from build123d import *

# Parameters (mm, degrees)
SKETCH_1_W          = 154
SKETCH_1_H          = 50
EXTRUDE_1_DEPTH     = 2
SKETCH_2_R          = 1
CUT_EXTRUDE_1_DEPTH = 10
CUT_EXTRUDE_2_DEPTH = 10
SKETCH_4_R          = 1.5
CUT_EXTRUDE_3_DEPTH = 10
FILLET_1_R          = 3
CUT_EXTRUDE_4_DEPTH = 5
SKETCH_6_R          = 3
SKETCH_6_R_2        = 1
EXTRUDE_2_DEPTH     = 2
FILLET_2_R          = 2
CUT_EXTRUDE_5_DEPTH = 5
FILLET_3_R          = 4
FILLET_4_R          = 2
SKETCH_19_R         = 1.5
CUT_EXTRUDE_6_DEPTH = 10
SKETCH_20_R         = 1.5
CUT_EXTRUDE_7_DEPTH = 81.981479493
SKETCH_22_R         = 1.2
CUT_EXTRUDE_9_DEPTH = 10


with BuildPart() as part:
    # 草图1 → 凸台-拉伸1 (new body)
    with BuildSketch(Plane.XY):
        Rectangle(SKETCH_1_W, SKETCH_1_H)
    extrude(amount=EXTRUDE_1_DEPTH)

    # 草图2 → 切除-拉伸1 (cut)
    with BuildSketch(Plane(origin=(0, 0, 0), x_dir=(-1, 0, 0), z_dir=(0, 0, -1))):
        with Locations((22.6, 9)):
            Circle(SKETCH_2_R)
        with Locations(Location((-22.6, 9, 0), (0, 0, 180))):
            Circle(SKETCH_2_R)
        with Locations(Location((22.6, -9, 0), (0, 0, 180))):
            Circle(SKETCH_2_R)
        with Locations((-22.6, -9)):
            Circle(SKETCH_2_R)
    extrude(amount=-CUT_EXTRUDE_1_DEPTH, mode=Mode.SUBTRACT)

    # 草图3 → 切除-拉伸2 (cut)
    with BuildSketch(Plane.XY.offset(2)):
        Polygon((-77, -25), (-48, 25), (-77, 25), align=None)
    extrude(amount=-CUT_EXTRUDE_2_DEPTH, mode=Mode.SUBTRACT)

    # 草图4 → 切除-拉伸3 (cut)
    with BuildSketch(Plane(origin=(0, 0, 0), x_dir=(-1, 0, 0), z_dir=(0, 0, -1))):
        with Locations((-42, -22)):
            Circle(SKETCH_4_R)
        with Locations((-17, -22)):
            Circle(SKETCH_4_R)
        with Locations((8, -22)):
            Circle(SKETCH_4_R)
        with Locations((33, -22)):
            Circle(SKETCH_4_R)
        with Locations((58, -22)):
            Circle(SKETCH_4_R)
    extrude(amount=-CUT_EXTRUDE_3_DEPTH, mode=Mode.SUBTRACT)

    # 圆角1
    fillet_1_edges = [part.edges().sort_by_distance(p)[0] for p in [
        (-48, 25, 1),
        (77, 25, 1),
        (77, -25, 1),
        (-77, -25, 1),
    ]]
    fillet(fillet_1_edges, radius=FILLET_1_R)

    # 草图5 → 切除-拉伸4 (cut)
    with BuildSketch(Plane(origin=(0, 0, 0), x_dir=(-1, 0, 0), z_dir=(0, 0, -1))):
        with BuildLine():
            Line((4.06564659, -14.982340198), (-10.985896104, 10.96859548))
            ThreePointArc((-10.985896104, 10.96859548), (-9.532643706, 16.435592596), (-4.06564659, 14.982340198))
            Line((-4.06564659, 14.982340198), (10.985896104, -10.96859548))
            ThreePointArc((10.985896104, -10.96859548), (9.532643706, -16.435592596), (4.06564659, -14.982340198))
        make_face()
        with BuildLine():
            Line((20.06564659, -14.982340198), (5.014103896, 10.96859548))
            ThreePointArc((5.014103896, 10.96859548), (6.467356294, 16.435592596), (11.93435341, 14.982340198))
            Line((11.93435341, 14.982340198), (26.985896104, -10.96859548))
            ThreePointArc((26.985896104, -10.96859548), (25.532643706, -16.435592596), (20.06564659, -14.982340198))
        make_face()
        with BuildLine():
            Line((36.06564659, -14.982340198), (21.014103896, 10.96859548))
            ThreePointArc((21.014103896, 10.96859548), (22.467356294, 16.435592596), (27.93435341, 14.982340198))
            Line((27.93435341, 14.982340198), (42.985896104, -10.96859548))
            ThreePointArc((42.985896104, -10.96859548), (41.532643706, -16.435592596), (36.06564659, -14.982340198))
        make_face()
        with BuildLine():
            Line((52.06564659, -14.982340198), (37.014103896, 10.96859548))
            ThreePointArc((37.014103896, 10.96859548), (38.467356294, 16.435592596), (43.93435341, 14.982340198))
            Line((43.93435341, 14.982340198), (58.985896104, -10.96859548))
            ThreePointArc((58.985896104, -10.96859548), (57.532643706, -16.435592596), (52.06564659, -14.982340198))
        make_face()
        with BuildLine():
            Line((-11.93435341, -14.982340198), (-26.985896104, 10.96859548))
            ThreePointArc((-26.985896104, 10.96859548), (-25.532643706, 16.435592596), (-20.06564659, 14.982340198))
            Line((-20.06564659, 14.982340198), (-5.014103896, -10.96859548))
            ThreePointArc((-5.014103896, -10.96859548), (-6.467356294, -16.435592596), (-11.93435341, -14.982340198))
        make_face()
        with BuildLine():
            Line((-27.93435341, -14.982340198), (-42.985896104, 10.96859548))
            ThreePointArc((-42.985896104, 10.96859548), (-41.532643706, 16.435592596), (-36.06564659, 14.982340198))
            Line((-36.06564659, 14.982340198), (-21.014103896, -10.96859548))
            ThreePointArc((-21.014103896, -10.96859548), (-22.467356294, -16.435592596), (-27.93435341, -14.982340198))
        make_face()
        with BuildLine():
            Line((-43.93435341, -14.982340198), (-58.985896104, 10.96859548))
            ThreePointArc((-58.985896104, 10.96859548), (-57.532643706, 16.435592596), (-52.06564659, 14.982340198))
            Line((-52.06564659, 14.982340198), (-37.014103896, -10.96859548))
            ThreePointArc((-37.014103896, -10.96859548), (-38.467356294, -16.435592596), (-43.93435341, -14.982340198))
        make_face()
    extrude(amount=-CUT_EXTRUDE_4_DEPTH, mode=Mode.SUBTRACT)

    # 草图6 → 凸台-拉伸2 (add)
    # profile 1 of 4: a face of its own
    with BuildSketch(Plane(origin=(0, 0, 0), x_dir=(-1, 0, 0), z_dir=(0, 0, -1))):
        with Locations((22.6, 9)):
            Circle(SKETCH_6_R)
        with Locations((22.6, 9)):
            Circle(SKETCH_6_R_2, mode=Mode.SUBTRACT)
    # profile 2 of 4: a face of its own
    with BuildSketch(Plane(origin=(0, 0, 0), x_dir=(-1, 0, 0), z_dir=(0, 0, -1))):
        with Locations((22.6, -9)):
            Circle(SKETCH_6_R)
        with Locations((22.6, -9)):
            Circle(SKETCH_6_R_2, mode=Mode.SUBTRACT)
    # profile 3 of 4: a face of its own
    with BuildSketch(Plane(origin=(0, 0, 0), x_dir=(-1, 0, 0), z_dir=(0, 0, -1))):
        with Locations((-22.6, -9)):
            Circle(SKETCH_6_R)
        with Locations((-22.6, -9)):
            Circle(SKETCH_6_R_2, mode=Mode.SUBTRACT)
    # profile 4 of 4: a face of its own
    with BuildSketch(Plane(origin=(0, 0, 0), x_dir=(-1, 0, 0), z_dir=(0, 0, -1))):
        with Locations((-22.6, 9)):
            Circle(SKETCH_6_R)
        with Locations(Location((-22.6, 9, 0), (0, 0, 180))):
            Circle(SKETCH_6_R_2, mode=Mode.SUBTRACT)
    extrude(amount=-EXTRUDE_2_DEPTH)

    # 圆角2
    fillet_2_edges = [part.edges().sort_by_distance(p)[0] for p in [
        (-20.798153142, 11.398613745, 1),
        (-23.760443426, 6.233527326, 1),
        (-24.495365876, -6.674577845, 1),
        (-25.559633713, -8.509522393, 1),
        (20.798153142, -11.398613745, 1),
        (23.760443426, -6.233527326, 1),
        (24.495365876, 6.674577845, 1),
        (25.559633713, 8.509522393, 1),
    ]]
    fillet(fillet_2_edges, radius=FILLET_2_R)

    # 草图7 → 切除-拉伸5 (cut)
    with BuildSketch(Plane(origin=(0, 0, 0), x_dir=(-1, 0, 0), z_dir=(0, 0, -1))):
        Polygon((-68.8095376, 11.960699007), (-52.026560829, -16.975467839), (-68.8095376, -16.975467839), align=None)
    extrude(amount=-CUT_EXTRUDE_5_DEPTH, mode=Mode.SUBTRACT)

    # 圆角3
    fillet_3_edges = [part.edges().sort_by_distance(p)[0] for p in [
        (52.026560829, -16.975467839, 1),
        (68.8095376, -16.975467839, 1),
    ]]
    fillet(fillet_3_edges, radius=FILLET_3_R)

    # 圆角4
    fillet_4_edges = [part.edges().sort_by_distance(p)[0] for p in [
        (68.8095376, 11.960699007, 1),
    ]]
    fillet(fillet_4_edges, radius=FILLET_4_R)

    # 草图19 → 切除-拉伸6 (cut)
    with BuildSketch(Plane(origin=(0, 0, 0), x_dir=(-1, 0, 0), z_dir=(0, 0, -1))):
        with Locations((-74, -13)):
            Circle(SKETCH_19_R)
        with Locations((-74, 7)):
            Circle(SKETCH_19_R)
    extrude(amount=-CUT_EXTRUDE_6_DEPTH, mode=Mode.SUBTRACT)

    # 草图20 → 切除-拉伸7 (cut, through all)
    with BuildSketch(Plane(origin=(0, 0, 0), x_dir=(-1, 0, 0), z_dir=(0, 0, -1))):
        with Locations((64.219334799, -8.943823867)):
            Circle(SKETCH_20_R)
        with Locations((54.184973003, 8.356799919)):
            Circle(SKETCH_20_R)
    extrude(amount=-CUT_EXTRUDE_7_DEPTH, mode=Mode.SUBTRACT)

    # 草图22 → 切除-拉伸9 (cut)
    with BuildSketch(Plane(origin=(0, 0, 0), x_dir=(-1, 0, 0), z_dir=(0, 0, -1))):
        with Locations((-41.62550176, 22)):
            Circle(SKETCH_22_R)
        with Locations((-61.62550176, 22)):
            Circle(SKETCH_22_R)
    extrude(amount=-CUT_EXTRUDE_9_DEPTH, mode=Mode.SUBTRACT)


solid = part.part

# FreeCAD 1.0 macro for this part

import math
import FreeCAD as App
import Part
import Sketcher

V = App.Vector


def edges_at(feature, points):
    """Names of the edges that pass closest to the given points."""
    edges = feature.Shape.Edges
    near = lambda p: min(range(len(edges)), key=lambda i: edges[i].distToShape(Part.Vertex(*p))[0])
    return sorted({f"Edge{near(p) + 1}" for p in points})


def add_polygon(sketch, points):
    """Adds a closed chain of lines whose ends are joined by coincident constraints."""
    first, n = sketch.GeometryCount, len(points)
    for a, b in zip(points, points[1:] + points[:1]):
        sketch.addGeometry(Part.LineSegment(App.Vector(*a, 0), App.Vector(*b, 0)), False)
    for i in range(n):
        sketch.addConstraint(Sketcher.Constraint("Coincident", first + i, 2, first + (i + 1) % n, 1))

doc = App.newDocument("Part")
body = doc.addObject("PartDesign::Body", "Body")

sketch1 = body.newObject("Sketcher::SketchObject", "Sketch")
sketch1.AttachmentSupport = (doc.getObject("XY_Plane"), [""])
sketch1.MapMode = "FlatFace"
add_polygon(sketch1, [(-77, 25), (-77, -25), (77, -25), (77, 25)])
sketch1.addConstraint([
    Sketcher.Constraint("Vertical", 0),
    Sketcher.Constraint("Horizontal", 1),
    Sketcher.Constraint("Vertical", 2),
    Sketcher.Constraint("Horizontal", 3),
    Sketcher.Constraint("Symmetric", 0, 2, 2, 2, -1, 1),
    Sketcher.Constraint("DistanceX", 1, 1, 1, 2, 154.0),
    Sketcher.Constraint("DistanceY", 0, 2, 0, 1, 50.0),
])
pad1 = body.newObject("PartDesign::Pad", "Pad")
pad1.Profile = sketch1
pad1.Length = 2

sketch2 = body.newObject("Sketcher::SketchObject", "Sketch001")
sketch2.AttachmentSupport = (doc.getObject("XY_Plane"), [""])
sketch2.MapMode = "FlatFace"
sketch2.addGeometry([
    Part.Circle(V(-22.6, 9, 0), V(0, 0, 1), 1),
    Part.Circle(V(22.6, 9, 0), V(0, 0, 1), 1),
    Part.Circle(V(-22.6, -9, 0), V(0, 0, 1), 1),
    Part.Circle(V(22.6, -9, 0), V(0, 0, 1), 1),
], False)
sketch2.addConstraint([
    Sketcher.Constraint("Equal", 0, 1),
    Sketcher.Constraint("Equal", 1, 2),
    Sketcher.Constraint("Equal", 2, 3),
    Sketcher.Constraint("Symmetric", 1, 3, 2, 3, -1, 1),
    Sketcher.Constraint("Symmetric", 0, 3, 3, 3, -1, 1),
    Sketcher.Constraint("Symmetric", 0, 3, 1, 3, -2),
    Sketcher.Constraint("Diameter", 0, 2.0),
    Sketcher.Constraint("DistanceY", -1, 1, 0, 3, 9.0),
    Sketcher.Constraint("DistanceX", 0, 3, -1, 1, 22.6),
])
pocket1 = body.newObject("PartDesign::Pocket", "Pocket")
pocket1.Profile = sketch2
pocket1.Length = 10
pocket1.Reversed = True

sketch3 = body.newObject("Sketcher::SketchObject", "Sketch002")
sketch3.AttachmentSupport = (doc.getObject("XY_Plane"), [""])
sketch3.MapMode = "FlatFace"
sketch3.AttachmentOffset = App.Placement(V(0, 0, 2), App.Rotation())
add_polygon(sketch3, [(-77, -25), (-48, 25), (-77, 25)])
sketch3.addConstraint([
    Sketcher.Constraint("Horizontal", 1),
    Sketcher.Constraint("Vertical", 2),
    Sketcher.Constraint("DistanceX", 1, 2, 1, 1, 29.0),
    Sketcher.Constraint("DistanceY", 2, 2, 2, 1, 50.0),
    Sketcher.Constraint("DistanceX", 0, 2, -1, 1, 48.0),
    Sketcher.Constraint("DistanceY", -1, 1, 0, 2, 25.0),
])
pocket2 = body.newObject("PartDesign::Pocket", "Pocket001")
pocket2.Profile = sketch3
pocket2.Length = 10

sketch4 = body.newObject("Sketcher::SketchObject", "Sketch003")
sketch4.AttachmentSupport = (doc.getObject("XY_Plane"), [""])
sketch4.MapMode = "FlatFace"
sketch4.addGeometry([
    Part.Circle(V(42, -22, 0), V(0, 0, 1), 1.5),
    Part.Circle(V(17, -22, 0), V(0, 0, 1), 1.5),
    Part.Circle(V(-8, -22, 0), V(0, 0, 1), 1.5),
    Part.Circle(V(-33, -22, 0), V(0, 0, 1), 1.5),
    Part.Circle(V(-58, -22, 0), V(0, 0, 1), 1.5),
], False)
sketch4.addConstraint([
    Sketcher.Constraint("Equal", 0, 1),
    Sketcher.Constraint("Equal", 1, 2),
    Sketcher.Constraint("Equal", 2, 3),
    Sketcher.Constraint("Equal", 3, 4),
    Sketcher.Constraint("Horizontal", 0, 3, 1, 3),
    Sketcher.Constraint("Horizontal", 1, 3, 2, 3),
    Sketcher.Constraint("Horizontal", 2, 3, 3, 3),
    Sketcher.Constraint("Horizontal", 3, 3, 4, 3),
    Sketcher.Constraint("Diameter", 0, 3.0),
    Sketcher.Constraint("DistanceX", -1, 1, 0, 3, 42.0),
    Sketcher.Constraint("DistanceY", 0, 3, -1, 1, 22.0),
    Sketcher.Constraint("DistanceX", -1, 1, 1, 3, 17.0),
    Sketcher.Constraint("DistanceX", 2, 3, -1, 1, 8.0),
    Sketcher.Constraint("DistanceX", 3, 3, -1, 1, 33.0),
    Sketcher.Constraint("DistanceX", 4, 3, -1, 1, 58.0),
])
pocket3 = body.newObject("PartDesign::Pocket", "Pocket002")
pocket3.Profile = sketch4
pocket3.Length = 10
pocket3.Reversed = True
doc.recompute()

fillet = body.newObject("PartDesign::Fillet", "Fillet")
fillet.Base = (pocket3, edges_at(pocket3, [
    (-48, 25, 1),
    (77, 25, 1),
    (77, -25, 1),
    (-77, -25, 1),
]))
fillet.Radius = 3

sketch5 = body.newObject("Sketcher::SketchObject", "Sketch004")
sketch5.AttachmentSupport = (doc.getObject("XY_Plane"), [""])
sketch5.MapMode = "FlatFace"
sketch5.addGeometry([
    Part.LineSegment(V(11, 11, 0), V(-4.1, -15, 0)),
    Part.ArcOfCircle(Part.Circle(V(-7.5, -13, 0), V(0, 0, 1), 4), math.radians(150), math.radians(330)),
    Part.LineSegment(V(-11, -11, 0), V(4.1, 15, 0)),
    Part.ArcOfCircle(Part.Circle(V(7.5, 13, 0), V(0, 0, 1), 4), math.radians(-30), math.radians(150)),
    Part.LineSegment(V(-5, 11, 0), V(-20.1, -15, 0)),
    Part.ArcOfCircle(Part.Circle(V(-23.5, -13, 0), V(0, 0, 1), 4), math.radians(150), math.radians(330)),
    Part.LineSegment(V(-27, -11, 0), V(-11.9, 15, 0)),
    Part.ArcOfCircle(Part.Circle(V(-8.5, 13, 0), V(0, 0, 1), 4), math.radians(-30), math.radians(150)),
    Part.LineSegment(V(-21, 11, 0), V(-36.1, -15, 0)),
    Part.ArcOfCircle(Part.Circle(V(-39.5, -13, 0), V(0, 0, 1), 4), math.radians(150), math.radians(330)),
    Part.LineSegment(V(-43, -11, 0), V(-27.9, 15, 0)),
    Part.ArcOfCircle(Part.Circle(V(-24.5, 13, 0), V(0, 0, 1), 4), math.radians(-30), math.radians(150)),
    Part.LineSegment(V(-37, 11, 0), V(-52.1, -15, 0)),
    Part.ArcOfCircle(Part.Circle(V(-55.5, -13, 0), V(0, 0, 1), 4), math.radians(150), math.radians(330)),
    Part.LineSegment(V(-59, -11, 0), V(-43.9, 15, 0)),
    Part.ArcOfCircle(Part.Circle(V(-40.5, 13, 0), V(0, 0, 1), 4), math.radians(-30), math.radians(150)),
    Part.LineSegment(V(27, 11, 0), V(11.9, -15, 0)),
    Part.ArcOfCircle(Part.Circle(V(8.5, -13, 0), V(0, 0, 1), 4), math.radians(150), math.radians(330)),
    Part.LineSegment(V(5, -11, 0), V(20.1, 15, 0)),
    Part.ArcOfCircle(Part.Circle(V(23.5, 13, 0), V(0, 0, 1), 4), math.radians(-30), math.radians(150)),
    Part.LineSegment(V(43, 11, 0), V(27.9, -15, 0)),
    Part.ArcOfCircle(Part.Circle(V(24.5, -13, 0), V(0, 0, 1), 4), math.radians(150), math.radians(330)),
    Part.LineSegment(V(21, -11, 0), V(36.1, 15, 0)),
    Part.ArcOfCircle(Part.Circle(V(39.5, 13, 0), V(0, 0, 1), 4), math.radians(-30), math.radians(150)),
    Part.LineSegment(V(59, 11, 0), V(43.9, -15, 0)),
    Part.ArcOfCircle(Part.Circle(V(40.5, -13, 0), V(0, 0, 1), 4), math.radians(150), math.radians(330)),
    Part.LineSegment(V(37, -11, 0), V(52.1, 15, 0)),
    Part.ArcOfCircle(Part.Circle(V(55.5, 13, 0), V(0, 0, 1), 4), math.radians(-30), math.radians(150)),
], False)
sketch5.addConstraint([
    Sketcher.Constraint("Tangent", 0, 2, 1, 2),
    Sketcher.Constraint("Tangent", 1, 1, 2, 1),
    Sketcher.Constraint("Tangent", 2, 2, 3, 2),
    Sketcher.Constraint("Tangent", 3, 1, 0, 1),
    Sketcher.Constraint("Tangent", 4, 2, 5, 2),
    Sketcher.Constraint("Tangent", 5, 1, 6, 1),
    Sketcher.Constraint("Tangent", 6, 2, 7, 2),
    Sketcher.Constraint("Tangent", 7, 1, 4, 1),
    Sketcher.Constraint("Tangent", 8, 2, 9, 2),
    Sketcher.Constraint("Tangent", 9, 1, 10, 1),
    Sketcher.Constraint("Tangent", 10, 2, 11, 2),
    Sketcher.Constraint("Tangent", 11, 1, 8, 1),
    Sketcher.Constraint("Tangent", 12, 2, 13, 2),
    Sketcher.Constraint("Tangent", 13, 1, 14, 1),
    Sketcher.Constraint("Tangent", 14, 2, 15, 2),
    Sketcher.Constraint("Tangent", 15, 1, 12, 1),
    Sketcher.Constraint("Tangent", 16, 2, 17, 2),
    Sketcher.Constraint("Tangent", 17, 1, 18, 1),
    Sketcher.Constraint("Tangent", 18, 2, 19, 2),
    Sketcher.Constraint("Tangent", 19, 1, 16, 1),
    Sketcher.Constraint("Tangent", 20, 2, 21, 2),
    Sketcher.Constraint("Tangent", 21, 1, 22, 1),
    Sketcher.Constraint("Tangent", 22, 2, 23, 2),
    Sketcher.Constraint("Tangent", 23, 1, 20, 1),
    Sketcher.Constraint("Tangent", 24, 2, 25, 2),
    Sketcher.Constraint("Tangent", 25, 1, 26, 1),
    Sketcher.Constraint("Tangent", 26, 2, 27, 2),
    Sketcher.Constraint("Tangent", 27, 1, 24, 1),
    Sketcher.Constraint("Equal", 1, 3),
    Sketcher.Constraint("Equal", 3, 5),
    Sketcher.Constraint("Equal", 5, 7),
    Sketcher.Constraint("Equal", 7, 9),
    Sketcher.Constraint("Equal", 9, 11),
    Sketcher.Constraint("Equal", 11, 13),
    Sketcher.Constraint("Equal", 13, 15),
    Sketcher.Constraint("Equal", 15, 17),
    Sketcher.Constraint("Equal", 17, 19),
    Sketcher.Constraint("Equal", 19, 21),
    Sketcher.Constraint("Equal", 21, 23),
    Sketcher.Constraint("Equal", 23, 25),
    Sketcher.Constraint("Equal", 25, 27),
    Sketcher.Constraint("Symmetric", 1, 3, 3, 3, -1, 1),
    Sketcher.Constraint("Symmetric", 7, 3, 17, 3, -1, 1),
    Sketcher.Constraint("Symmetric", 5, 3, 19, 3, -1, 1),
    Sketcher.Constraint("Symmetric", 11, 3, 21, 3, -1, 1),
    Sketcher.Constraint("Symmetric", 9, 3, 23, 3, -1, 1),
    Sketcher.Constraint("Symmetric", 15, 3, 25, 3, -1, 1),
    Sketcher.Constraint("Symmetric", 13, 3, 27, 3, -1, 1),
    Sketcher.Constraint("Parallel", 2, 4),
    Sketcher.Constraint("Parallel", 6, 8),
    Sketcher.Constraint("Parallel", 10, 12),
    Sketcher.Constraint("Horizontal", 1, 3, 5, 3),
    Sketcher.Constraint("Horizontal", 3, 3, 7, 3),
    Sketcher.Constraint("Horizontal", 5, 3, 9, 3),
    Sketcher.Constraint("Horizontal", 7, 3, 11, 3),
    Sketcher.Constraint("Horizontal", 9, 3, 13, 3),
    Sketcher.Constraint("Horizontal", 11, 3, 15, 3),
    Sketcher.Constraint("Radius", 1, 4.0),
    Sketcher.Constraint("Distance", 0, 30.0),
    Sketcher.Constraint("DistanceX", 5, 3, 1, 3, 16.0),
    Sketcher.Constraint("DistanceX", 9, 3, 5, 3, 16.0),
    Sketcher.Constraint("DistanceX", 13, 3, 9, 3, 16.0),
    Sketcher.Constraint("DistanceX", 1, 3, -1, 1, 7.525771),
])
pocket4 = body.newObject("PartDesign::Pocket", "Pocket003")
pocket4.Profile = sketch5
pocket4.Length = 5
pocket4.Reversed = True

sketch6 = body.newObject("Sketcher::SketchObject", "Sketch005")
sketch6.AttachmentSupport = (doc.getObject("XY_Plane"), [""])
sketch6.MapMode = "FlatFace"
sketch6.addGeometry([
    Part.Circle(V(-22.6, 9, 0), V(0, 0, 1), 3),
    Part.Circle(V(-22.6, 9, 0), V(0, 0, 1), 1),
    Part.Circle(V(-22.6, -9, 0), V(0, 0, 1), 3),
    Part.Circle(V(-22.6, -9, 0), V(0, 0, 1), 1),
    Part.Circle(V(22.6, -9, 0), V(0, 0, 1), 3),
    Part.Circle(V(22.6, -9, 0), V(0, 0, 1), 1),
    Part.Circle(V(22.6, 9, 0), V(0, 0, 1), 3),
    Part.Circle(V(22.6, 9, 0), V(0, 0, 1), 1),
], False)
sketch6.addConstraint([
    Sketcher.Constraint("Coincident", 1, 3, 0, 3),
    Sketcher.Constraint("Coincident", 3, 3, 2, 3),
    Sketcher.Constraint("Coincident", 5, 3, 4, 3),
    Sketcher.Constraint("Coincident", 7, 3, 6, 3),
    Sketcher.Constraint("Equal", 0, 2),
    Sketcher.Constraint("Equal", 1, 3),
    Sketcher.Constraint("Equal", 2, 4),
    Sketcher.Constraint("Equal", 3, 5),
    Sketcher.Constraint("Equal", 4, 6),
    Sketcher.Constraint("Equal", 5, 7),
    Sketcher.Constraint("Symmetric", 0, 3, 4, 3, -1, 1),
    Sketcher.Constraint("Symmetric", 2, 3, 6, 3, -1, 1),
    Sketcher.Constraint("Symmetric", 2, 3, 4, 3, -2),
    Sketcher.Constraint("Diameter", 0, 6.0),
    Sketcher.Constraint("Diameter", 1, 2.0),
    Sketcher.Constraint("DistanceY", -1, 1, 0, 3, 9.0),
    Sketcher.Constraint("DistanceX", 0, 3, -1, 1, 22.6),
])
pad2 = body.newObject("PartDesign::Pad", "Pad001")
pad2.Profile = sketch6
pad2.Length = 2
doc.recompute()

fillet2 = body.newObject("PartDesign::Fillet", "Fillet001")
fillet2.Base = (pad2, edges_at(pad2, [
    (-20.798, 11.399, 1),
    (-23.76, 6.234, 1),
    (-24.495, -6.675, 1),
    (-25.56, -8.51, 1),
    (20.798, -11.399, 1),
    (23.76, -6.234, 1),
    (24.495, 6.675, 1),
    (25.56, 8.51, 1),
]))
fillet2.Radius = 2

sketch7 = body.newObject("Sketcher::SketchObject", "Sketch006")
sketch7.AttachmentSupport = (doc.getObject("XY_Plane"), [""])
sketch7.MapMode = "FlatFace"
add_polygon(sketch7, [(52, -17), (69, 12), (69, -17)])
sketch7.addConstraint([
    Sketcher.Constraint("Vertical", 1),
    Sketcher.Constraint("Horizontal", 2),
    Sketcher.Constraint("DistanceY", -1, 1, 0, 2, 11.960699),
    Sketcher.Constraint("Distance", 0, 33.45101),
    Sketcher.Constraint("DistanceX", 2, 2, 2, 1, 16.782977),
    Sketcher.Constraint("DistanceX", -1, 1, 2, 2, 52.026561),
])
pocket5 = body.newObject("PartDesign::Pocket", "Pocket004")
pocket5.Profile = sketch7
pocket5.Length = 5
pocket5.Reversed = True
doc.recompute()

fillet3 = body.newObject("PartDesign::Fillet", "Fillet002")
fillet3.Base = (pocket5, edges_at(pocket5, [(52.027, -16.975, 1), (68.81, -16.975, 1)]))
fillet3.Radius = 4
doc.recompute()

fillet4 = body.newObject("PartDesign::Fillet", "Fillet003")
fillet4.Base = (fillet3, edges_at(fillet3, [(68.81, 11.961, 1)]))
fillet4.Radius = 2

sketch8 = body.newObject("Sketcher::SketchObject", "Sketch007")
sketch8.AttachmentSupport = (doc.getObject("XY_Plane"), [""])
sketch8.MapMode = "FlatFace"
sketch8.addGeometry([
    Part.Circle(V(74, -13, 0), V(0, 0, 1), 1.5),
    Part.Circle(V(74, 7, 0), V(0, 0, 1), 1.5),
], False)
sketch8.addConstraint([
    Sketcher.Constraint("Equal", 0, 1),
    Sketcher.Constraint("Vertical", 0, 3, 1, 3),
    Sketcher.Constraint("Diameter", 0, 3.0),
    Sketcher.Constraint("DistanceX", -1, 1, 0, 3, 74.0),
    Sketcher.Constraint("DistanceY", 0, 3, -1, 1, 13.0),
    Sketcher.Constraint("DistanceY", -1, 1, 1, 3, 7.0),
])
pocket6 = body.newObject("PartDesign::Pocket", "Pocket005")
pocket6.Profile = sketch8
pocket6.Length = 10
pocket6.Reversed = True

sketch9 = body.newObject("Sketcher::SketchObject", "Sketch008")
sketch9.AttachmentSupport = (doc.getObject("XY_Plane"), [""])
sketch9.MapMode = "FlatFace"
sketch9.addGeometry([
    Part.Circle(V(-64.2, -8.9, 0), V(0, 0, 1), 1.5),
    Part.Circle(V(-54.2, 8.4, 0), V(0, 0, 1), 1.5),
], False)
sketch9.addConstraint([
    Sketcher.Constraint("Equal", 0, 1),
    Sketcher.Constraint("Diameter", 0, 3.0),
    Sketcher.Constraint("DistanceY", -1, 1, 1, 3, 8.3568),
    Sketcher.Constraint("DistanceX", 0, 3, 1, 3, 10.034362),
    Sketcher.Constraint("DistanceX", 0, 3, -1, 1, 64.219335),
    Sketcher.Constraint("DistanceY", 0, 3, -1, 1, 8.943824),
])
pocket7 = body.newObject("PartDesign::Pocket", "Pocket006")
pocket7.Profile = sketch9
pocket7.Type = "ThroughAll"
pocket7.Reversed = True

sketch10 = body.newObject("Sketcher::SketchObject", "Sketch009")
sketch10.AttachmentSupport = (doc.getObject("XY_Plane"), [""])
sketch10.MapMode = "FlatFace"
sketch10.addGeometry([
    Part.Circle(V(41.6, 22, 0), V(0, 0, 1), 1.2),
    Part.Circle(V(61.6, 22, 0), V(0, 0, 1), 1.2),
], False)
sketch10.addConstraint([
    Sketcher.Constraint("Equal", 0, 1),
    Sketcher.Constraint("Horizontal", 0, 3, 1, 3),
    Sketcher.Constraint("Diameter", 0, 2.4),
    Sketcher.Constraint("DistanceY", -1, 1, 0, 3, 22.0),
    Sketcher.Constraint("DistanceX", 0, 3, 1, 3, 20.0),
    Sketcher.Constraint("DistanceX", -1, 1, 0, 3, 41.625502),
])
pocket8 = body.newObject("PartDesign::Pocket", "Pocket007")
pocket8.Profile = sketch10
pocket8.Length = 10
pocket8.Reversed = True

doc.recompute()
